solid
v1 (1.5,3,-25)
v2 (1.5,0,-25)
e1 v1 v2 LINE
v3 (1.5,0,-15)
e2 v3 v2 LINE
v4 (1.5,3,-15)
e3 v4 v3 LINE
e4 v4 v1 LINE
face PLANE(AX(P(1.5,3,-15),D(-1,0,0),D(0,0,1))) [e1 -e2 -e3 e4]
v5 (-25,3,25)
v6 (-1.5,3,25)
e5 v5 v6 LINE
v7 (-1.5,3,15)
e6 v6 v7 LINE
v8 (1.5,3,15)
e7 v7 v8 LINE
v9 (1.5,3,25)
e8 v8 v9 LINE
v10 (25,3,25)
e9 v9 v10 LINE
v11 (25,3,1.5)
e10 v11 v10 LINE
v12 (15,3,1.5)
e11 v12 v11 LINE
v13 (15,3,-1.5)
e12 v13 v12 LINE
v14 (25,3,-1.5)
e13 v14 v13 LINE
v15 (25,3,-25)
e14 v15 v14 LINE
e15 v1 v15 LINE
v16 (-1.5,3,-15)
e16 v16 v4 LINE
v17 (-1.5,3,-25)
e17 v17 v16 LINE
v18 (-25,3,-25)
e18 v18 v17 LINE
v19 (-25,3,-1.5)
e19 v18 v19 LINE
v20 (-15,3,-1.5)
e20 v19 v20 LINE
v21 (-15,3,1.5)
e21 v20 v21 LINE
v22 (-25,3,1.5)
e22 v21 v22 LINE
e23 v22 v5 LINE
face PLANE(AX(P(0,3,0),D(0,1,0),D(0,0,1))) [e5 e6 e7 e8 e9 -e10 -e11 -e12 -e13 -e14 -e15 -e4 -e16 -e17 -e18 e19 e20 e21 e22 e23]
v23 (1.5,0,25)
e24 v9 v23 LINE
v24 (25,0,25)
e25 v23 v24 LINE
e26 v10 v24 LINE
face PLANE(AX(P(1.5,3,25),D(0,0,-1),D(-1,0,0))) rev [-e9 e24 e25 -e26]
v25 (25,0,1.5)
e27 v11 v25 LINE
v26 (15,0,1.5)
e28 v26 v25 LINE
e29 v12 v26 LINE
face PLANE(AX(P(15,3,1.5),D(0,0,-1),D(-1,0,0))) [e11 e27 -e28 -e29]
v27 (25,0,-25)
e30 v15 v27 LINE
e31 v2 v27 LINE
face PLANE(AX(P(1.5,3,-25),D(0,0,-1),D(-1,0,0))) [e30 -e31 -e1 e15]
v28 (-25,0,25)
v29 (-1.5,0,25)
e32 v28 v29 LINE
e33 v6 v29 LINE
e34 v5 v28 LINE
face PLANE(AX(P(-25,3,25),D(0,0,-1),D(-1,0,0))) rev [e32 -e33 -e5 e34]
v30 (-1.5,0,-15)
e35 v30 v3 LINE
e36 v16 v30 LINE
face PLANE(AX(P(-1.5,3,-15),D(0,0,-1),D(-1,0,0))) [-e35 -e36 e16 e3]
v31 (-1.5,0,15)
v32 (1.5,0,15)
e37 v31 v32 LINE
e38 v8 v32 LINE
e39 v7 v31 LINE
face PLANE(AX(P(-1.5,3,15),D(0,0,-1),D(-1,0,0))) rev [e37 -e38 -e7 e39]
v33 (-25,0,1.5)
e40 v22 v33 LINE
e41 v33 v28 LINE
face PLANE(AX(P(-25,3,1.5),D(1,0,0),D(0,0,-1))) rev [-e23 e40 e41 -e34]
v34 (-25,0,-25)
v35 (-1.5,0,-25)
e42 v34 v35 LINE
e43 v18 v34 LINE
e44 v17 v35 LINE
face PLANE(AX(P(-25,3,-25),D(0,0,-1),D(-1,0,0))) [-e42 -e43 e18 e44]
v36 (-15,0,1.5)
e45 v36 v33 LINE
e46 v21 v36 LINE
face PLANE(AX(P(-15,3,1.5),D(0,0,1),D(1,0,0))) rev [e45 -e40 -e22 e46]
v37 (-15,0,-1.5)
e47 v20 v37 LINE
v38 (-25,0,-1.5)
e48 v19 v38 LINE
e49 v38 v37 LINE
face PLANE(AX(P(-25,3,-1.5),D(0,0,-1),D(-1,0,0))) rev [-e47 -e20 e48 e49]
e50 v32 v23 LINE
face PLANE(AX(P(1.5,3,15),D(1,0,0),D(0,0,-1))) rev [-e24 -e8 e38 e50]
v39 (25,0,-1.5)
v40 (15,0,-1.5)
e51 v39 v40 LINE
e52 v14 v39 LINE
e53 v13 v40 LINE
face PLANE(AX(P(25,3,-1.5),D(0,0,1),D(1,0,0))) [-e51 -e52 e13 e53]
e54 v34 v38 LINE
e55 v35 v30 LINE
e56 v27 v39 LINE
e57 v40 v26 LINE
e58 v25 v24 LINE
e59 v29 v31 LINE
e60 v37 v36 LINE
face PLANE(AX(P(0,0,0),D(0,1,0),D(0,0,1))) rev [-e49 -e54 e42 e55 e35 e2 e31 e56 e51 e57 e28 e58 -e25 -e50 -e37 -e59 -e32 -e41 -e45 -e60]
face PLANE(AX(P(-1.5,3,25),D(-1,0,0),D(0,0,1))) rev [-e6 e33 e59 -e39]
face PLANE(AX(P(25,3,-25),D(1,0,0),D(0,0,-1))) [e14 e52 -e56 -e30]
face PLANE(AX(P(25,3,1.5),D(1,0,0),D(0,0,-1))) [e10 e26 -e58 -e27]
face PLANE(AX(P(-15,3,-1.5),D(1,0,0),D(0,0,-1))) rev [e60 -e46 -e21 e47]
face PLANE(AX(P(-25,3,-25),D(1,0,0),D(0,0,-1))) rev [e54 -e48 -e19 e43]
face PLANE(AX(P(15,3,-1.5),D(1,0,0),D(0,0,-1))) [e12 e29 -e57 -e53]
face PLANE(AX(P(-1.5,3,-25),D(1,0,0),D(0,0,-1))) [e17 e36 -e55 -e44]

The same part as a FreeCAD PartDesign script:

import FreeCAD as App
import Part
import Sketcher

V = App.Vector

doc = App.newDocument("Part")
body = doc.addObject("PartDesign::Body", "Body")

# Sketch on XZ plane
sketch1 = body.newObject("Sketcher::SketchObject", "Sketch")
sketch1.AttachmentSupport = (doc.getObject("XZ_Plane"), [""])
sketch1.MapMode = "FlatFace"
sketch1.addGeometry([
    Part.LineSegment(V(-1.5, -15, 0), V(-1.5, -25, 0)),  # 0
    Part.LineSegment(V(-1.5, -25, 0), V(-25, -25, 0)),  # 1
    Part.LineSegment(V(-25, -25, 0), V(-25, -1.5, 0)),  # 2
    Part.LineSegment(V(-25, -1.5, 0), V(-15, -1.5, 0)),  # 3
    Part.LineSegment(V(-15, -1.5, 0), V(-15, 1.5, 0)),  # 4
    Part.LineSegment(V(-15, 1.5, 0), V(-25, 1.5, 0)),  # 5
    Part.LineSegment(V(-25, 1.5, 0), V(-25, 25, 0)),  # 6
    Part.LineSegment(V(-25, 25, 0), V(-1.5, 25, 0)),  # 7
    Part.LineSegment(V(-1.5, 25, 0), V(-1.5, 15, 0)),  # 8
    Part.LineSegment(V(-1.5, 15, 0), V(1.5, 15, 0)),  # 9
    Part.LineSegment(V(1.5, 15, 0), V(1.5, 25, 0)),  # 10
    Part.LineSegment(V(1.5, 25, 0), V(25, 25, 0)),  # 11
    Part.LineSegment(V(25, 25, 0), V(25, 1.5, 0)),  # 12
    Part.LineSegment(V(25, 1.5, 0), V(15, 1.5, 0)),  # 13
    Part.LineSegment(V(15, 1.5, 0), V(15, -1.5, 0)),  # 14
    Part.LineSegment(V(15, -1.5, 0), V(25, -1.5, 0)),  # 15
    Part.LineSegment(V(25, -1.5, 0), V(25, -25, 0)),  # 16
    Part.LineSegment(V(25, -25, 0), V(1.5, -25, 0)),  # 17
    Part.LineSegment(V(1.5, -25, 0), V(1.5, -15, 0)),  # 18
    Part.LineSegment(V(1.5, -15, 0), V(-1.5, -15, 0)),  # 19
], False)
sketch1.addConstraint([
    Sketcher.Constraint("Coincident", 0, 2, 1, 1),
    Sketcher.Constraint("Coincident", 1, 2, 2, 1),
    Sketcher.Constraint("Coincident", 2, 2, 3, 1),
    Sketcher.Constraint("Coincident", 3, 2, 4, 1),
    Sketcher.Constraint("Coincident", 4, 2, 5, 1),
    Sketcher.Constraint("Coincident", 5, 2, 6, 1),
    Sketcher.Constraint("Coincident", 6, 2, 7, 1),
    Sketcher.Constraint("Coincident", 7, 2, 8, 1),
    Sketcher.Constraint("Coincident", 8, 2, 9, 1),
    Sketcher.Constraint("Coincident", 9, 2, 10, 1),
    Sketcher.Constraint("Coincident", 10, 2, 11, 1),
    Sketcher.Constraint("Coincident", 11, 2, 12, 1),
    Sketcher.Constraint("Coincident", 12, 2, 13, 1),
    Sketcher.Constraint("Coincident", 13, 2, 14, 1),
    Sketcher.Constraint("Coincident", 14, 2, 15, 1),
    Sketcher.Constraint("Coincident", 15, 2, 16, 1),
    Sketcher.Constraint("Coincident", 16, 2, 17, 1),
    Sketcher.Constraint("Coincident", 17, 2, 18, 1),
    Sketcher.Constraint("Coincident", 18, 2, 19, 1),
    Sketcher.Constraint("Coincident", 19, 2, 0, 1),
    Sketcher.Constraint("Vertical", 0),
    Sketcher.Constraint("Horizontal", 1),
    Sketcher.Constraint("Vertical", 2),
    Sketcher.Constraint("Horizontal", 3),
    Sketcher.Constraint("Vertical", 4),
    Sketcher.Constraint("Horizontal", 5),
    Sketcher.Constraint("Vertical", 6),
    Sketcher.Constraint("Horizontal", 7),
    Sketcher.Constraint("Vertical", 8),
    Sketcher.Constraint("Horizontal", 9),
    Sketcher.Constraint("Vertical", 10),
    Sketcher.Constraint("Horizontal", 11),
    Sketcher.Constraint("Vertical", 12),
    Sketcher.Constraint("Horizontal", 13),
    Sketcher.Constraint("Vertical", 14),
    Sketcher.Constraint("Horizontal", 15),
    Sketcher.Constraint("Vertical", 16),
    Sketcher.Constraint("Horizontal", 17),
    Sketcher.Constraint("Vertical", 18),
    Sketcher.Constraint("Horizontal", 19),
    Sketcher.Constraint("Symmetric", 0, 2, 10, 2, -1, 1),
    Sketcher.Constraint("Symmetric", 2, 2, 12, 2, -1, 1),
    Sketcher.Constraint("Symmetric", 4, 2, 14, 2, -1, 1),
    Sketcher.Constraint("Symmetric", 6, 2, 16, 2, -1, 1),
    Sketcher.Constraint("Symmetric", 8, 2, 18, 2, -1, 1),
    Sketcher.Constraint("Symmetric", 7, 2, 10, 2, -2),
    Sketcher.Constraint("Symmetric", 5, 2, 12, 2, -2),
    Sketcher.Constraint("Equal", 15, 0),
    Sketcher.Constraint("Equal", 17, 2),
    Sketcher.Constraint("Equal", 19, 4),
    Sketcher.Constraint("DistanceX", 3, 1, 3, 2, 10.0),
    Sketcher.Constraint("DistanceX", 9, 1, 9, 2, 3.0),
    Sketcher.Constraint("DistanceX", 1, 2, 1, 1, 23.5),
])
pad1 = body.newObject("PartDesign::Pad", "Pad")
pad1.Profile = sketch1
pad1.Length = 3
pad1.Reversed = True

doc.recompute()
